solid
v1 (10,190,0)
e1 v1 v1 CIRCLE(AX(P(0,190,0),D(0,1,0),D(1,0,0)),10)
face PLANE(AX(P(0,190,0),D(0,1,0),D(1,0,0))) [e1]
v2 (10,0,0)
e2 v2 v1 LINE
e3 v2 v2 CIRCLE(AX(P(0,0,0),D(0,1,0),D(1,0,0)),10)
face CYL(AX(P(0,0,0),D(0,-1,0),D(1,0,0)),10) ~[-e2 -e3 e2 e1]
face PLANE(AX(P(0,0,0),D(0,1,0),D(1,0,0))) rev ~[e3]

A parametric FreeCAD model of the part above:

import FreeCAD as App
import Part
import Sketcher
Q = App.Units.Quantity

doc = App.newDocument("Part")
body = doc.addObject("PartDesign::Body", "Body")

sketch1 = body.newObject("Sketcher::SketchObject", "Sketch")
sketch1.AttachmentSupport = (doc.getObject("XZ_Plane"), [""])
sketch1.MapMode = "FlatFace"
sketch1.addGeometry(Part.Circle(App.Vector(0, 0, 0), App.Vector(0, 0, 1), 10), False)
sketch1.addConstraint([
    Sketcher.Constraint("Coincident", 0, 3, -1, 1),
    Sketcher.Constraint("Diameter", 0, Q("20 mm")),
])
pad1 = body.newObject("PartDesign::Pad", "Pad")
pad1.Profile = sketch1
pad1.Length = 190
pad1.Reversed = True

doc.recompute()
